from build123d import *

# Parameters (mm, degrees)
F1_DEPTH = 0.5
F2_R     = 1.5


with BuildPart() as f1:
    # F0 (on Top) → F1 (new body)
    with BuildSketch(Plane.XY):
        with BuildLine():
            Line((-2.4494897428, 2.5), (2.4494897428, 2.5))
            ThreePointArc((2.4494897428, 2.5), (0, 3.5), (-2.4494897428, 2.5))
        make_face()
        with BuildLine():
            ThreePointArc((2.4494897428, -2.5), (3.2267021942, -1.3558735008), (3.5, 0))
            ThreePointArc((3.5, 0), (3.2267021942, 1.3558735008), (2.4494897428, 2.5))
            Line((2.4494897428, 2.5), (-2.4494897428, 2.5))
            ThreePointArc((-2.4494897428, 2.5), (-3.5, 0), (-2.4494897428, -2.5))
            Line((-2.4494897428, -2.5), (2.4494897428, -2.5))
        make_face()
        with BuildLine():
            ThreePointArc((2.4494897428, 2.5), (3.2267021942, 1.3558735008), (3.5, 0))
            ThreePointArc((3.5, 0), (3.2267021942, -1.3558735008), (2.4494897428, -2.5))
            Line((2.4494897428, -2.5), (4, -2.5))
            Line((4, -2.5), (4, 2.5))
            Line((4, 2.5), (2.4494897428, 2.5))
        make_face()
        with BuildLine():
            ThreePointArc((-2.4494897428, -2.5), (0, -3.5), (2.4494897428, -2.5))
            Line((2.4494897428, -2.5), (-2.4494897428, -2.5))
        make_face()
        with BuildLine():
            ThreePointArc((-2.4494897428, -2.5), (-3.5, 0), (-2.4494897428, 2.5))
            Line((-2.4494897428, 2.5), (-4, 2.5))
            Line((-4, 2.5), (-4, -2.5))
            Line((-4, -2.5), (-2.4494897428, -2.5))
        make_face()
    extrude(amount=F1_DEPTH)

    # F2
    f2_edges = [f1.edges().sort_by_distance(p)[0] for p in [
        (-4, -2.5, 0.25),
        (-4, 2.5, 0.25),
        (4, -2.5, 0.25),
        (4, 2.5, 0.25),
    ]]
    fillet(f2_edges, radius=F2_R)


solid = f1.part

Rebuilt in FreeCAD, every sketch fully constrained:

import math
import FreeCAD as App
import Part
import Sketcher
Q = App.Units.Quantity


def edges_at(feature, points):
    """Names of the edges that pass closest to the given points."""
    edges = feature.Shape.Edges
    near = lambda p: min(range(len(edges)), key=lambda i: edges[i].distToShape(Part.Vertex(*p))[0])
    return sorted({f"Edge{near(p) + 1}" for p in points})

doc = App.newDocument("Part")
body = doc.addObject("PartDesign::Body", "Body")

# Sketch on XY plane
sketch1 = body.newObject("Sketcher::SketchObject", "Sketch")
sketch1.AttachmentSupport = (doc.getObject("XY_Plane"), [""])
sketch1.MapMode = "FlatFace"
sketch1.addGeometry([
    Part.ArcOfCircle(Part.Circle(App.Vector(0, 0, 0), App.Vector(0, 0, 1), 3.5), math.radians(45.584691), math.radians(134.415309)),  # 0
    Part.LineSegment(App.Vector(-2.44949, 2.5, 0), App.Vector(-4, 2.5, 0)),  # 1
    Part.LineSegment(App.Vector(-4, 2.5, 0), App.Vector(-4, -2.5, 0)),  # 2
    Part.LineSegment(App.Vector(-4, -2.5, 0), App.Vector(-2.44949, -2.5, 0)),  # 3
    Part.ArcOfCircle(Part.Circle(App.Vector(0, 0, 0), App.Vector(0, 0, 1), 3.5), math.radians(-134.415309), math.radians(-45.584691)),  # 4
    Part.LineSegment(App.Vector(2.44949, -2.5, 0), App.Vector(4, -2.5, 0)),  # 5
    Part.LineSegment(App.Vector(4, -2.5, 0), App.Vector(4, 2.5, 0)),  # 6
    Part.LineSegment(App.Vector(4, 2.5, 0), App.Vector(2.44949, 2.5, 0)),  # 7
], False)
sketch1.addConstraint([
    Sketcher.Constraint("Coincident", 0, 2, 1, 1),
    Sketcher.Constraint("Coincident", 1, 2, 2, 1),
    Sketcher.Constraint("Coincident", 2, 2, 3, 1),
    Sketcher.Constraint("Coincident", 3, 2, 4, 1),
    Sketcher.Constraint("Coincident", 4, 2, 5, 1),
    Sketcher.Constraint("Coincident", 5, 2, 6, 1),
    Sketcher.Constraint("Coincident", 6, 2, 7, 1),
    Sketcher.Constraint("Coincident", 7, 2, 0, 1),
    Sketcher.Constraint("Horizontal", 1),
    Sketcher.Constraint("Vertical", 2),
    Sketcher.Constraint("Horizontal", 3),
    Sketcher.Constraint("Horizontal", 5),
    Sketcher.Constraint("Vertical", 6),
    Sketcher.Constraint("Horizontal", 7),
    Sketcher.Constraint("Coincident", 0, 3, -1, 1),
    Sketcher.Constraint("Coincident", 4, 3, -1, 1),
    Sketcher.Constraint("Equal", 0, 4),
    Sketcher.Constraint("Symmetric", 1, 2, 5, 2, -1, 1),
    Sketcher.Constraint("Horizontal", 3, 2, 4, 2),
    Sketcher.Constraint("Horizontal", 1, 2, 6, 2),
    Sketcher.Constraint("Radius", 0, Q("3.5 mm")),
    Sketcher.Constraint("DistanceY", 2, 2, 2, 1, Q("5 mm")),
    Sketcher.Constraint("DistanceX", 1, 2, -1, 1, Q("4 mm")),
])
pad1 = body.newObject("PartDesign::Pad", "Pad")
pad1.Profile = sketch1
pad1.Length = 0.5
doc.recompute()

fillet = body.newObject("PartDesign::Fillet", "Fillet")
fillet.Base = (pad1, edges_at(pad1, [
    (-4, -2.5, 0.25),
    (-4, 2.5, 0.25),
    (4, -2.5, 0.25),
    (4, 2.5, 0.25),
]))
fillet.Radius = 1.5

doc.recompute()
